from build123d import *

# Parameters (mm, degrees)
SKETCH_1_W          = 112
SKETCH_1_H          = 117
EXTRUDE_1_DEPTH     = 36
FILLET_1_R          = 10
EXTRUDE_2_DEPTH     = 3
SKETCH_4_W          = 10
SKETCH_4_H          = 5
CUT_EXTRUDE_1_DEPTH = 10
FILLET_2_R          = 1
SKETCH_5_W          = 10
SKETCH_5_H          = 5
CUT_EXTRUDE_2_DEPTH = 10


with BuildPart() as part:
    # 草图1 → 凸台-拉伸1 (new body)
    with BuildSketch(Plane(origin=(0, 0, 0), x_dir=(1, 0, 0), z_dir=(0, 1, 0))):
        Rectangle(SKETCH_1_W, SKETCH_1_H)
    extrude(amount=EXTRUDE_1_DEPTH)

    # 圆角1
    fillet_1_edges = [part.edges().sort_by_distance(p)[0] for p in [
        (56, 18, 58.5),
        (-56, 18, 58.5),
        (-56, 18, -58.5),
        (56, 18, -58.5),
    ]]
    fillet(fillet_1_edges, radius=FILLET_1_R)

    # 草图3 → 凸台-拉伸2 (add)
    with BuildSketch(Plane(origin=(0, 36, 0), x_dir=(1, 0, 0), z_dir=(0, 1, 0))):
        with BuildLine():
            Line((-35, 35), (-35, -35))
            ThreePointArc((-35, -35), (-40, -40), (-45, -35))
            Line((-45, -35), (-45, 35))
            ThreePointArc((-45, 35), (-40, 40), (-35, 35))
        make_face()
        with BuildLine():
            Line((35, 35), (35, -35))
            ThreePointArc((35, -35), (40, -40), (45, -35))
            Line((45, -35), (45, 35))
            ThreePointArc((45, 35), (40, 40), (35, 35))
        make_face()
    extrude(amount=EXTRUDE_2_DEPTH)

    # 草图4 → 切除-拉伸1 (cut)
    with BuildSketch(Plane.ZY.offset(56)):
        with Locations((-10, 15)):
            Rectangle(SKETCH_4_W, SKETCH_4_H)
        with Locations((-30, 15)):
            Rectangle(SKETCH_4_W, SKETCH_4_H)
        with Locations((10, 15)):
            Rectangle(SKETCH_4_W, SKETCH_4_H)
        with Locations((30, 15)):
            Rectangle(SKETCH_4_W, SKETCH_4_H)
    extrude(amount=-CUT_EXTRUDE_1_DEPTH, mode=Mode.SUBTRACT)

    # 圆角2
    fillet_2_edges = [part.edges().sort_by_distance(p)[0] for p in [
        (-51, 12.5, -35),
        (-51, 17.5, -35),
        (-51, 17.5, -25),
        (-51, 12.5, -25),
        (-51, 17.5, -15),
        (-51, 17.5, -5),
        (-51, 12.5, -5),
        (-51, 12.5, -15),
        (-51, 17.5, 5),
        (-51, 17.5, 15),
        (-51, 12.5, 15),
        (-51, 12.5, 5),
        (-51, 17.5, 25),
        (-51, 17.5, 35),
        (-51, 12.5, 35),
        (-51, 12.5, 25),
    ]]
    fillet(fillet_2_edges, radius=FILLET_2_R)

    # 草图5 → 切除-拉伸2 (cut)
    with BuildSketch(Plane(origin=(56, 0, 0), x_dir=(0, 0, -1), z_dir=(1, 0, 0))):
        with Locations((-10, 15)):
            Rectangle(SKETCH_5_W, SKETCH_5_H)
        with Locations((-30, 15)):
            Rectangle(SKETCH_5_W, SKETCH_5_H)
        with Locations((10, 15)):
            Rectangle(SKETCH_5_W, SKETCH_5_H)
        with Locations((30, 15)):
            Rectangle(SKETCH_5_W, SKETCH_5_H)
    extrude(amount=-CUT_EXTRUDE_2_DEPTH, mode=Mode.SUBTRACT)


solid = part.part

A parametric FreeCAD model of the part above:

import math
import FreeCAD as App
import Part
import Sketcher
Q = App.Units.Quantity


def edges_at(feature, points):
    """Names of the edges that pass closest to the given points."""
    edges = feature.Shape.Edges
    near = lambda p: min(range(len(edges)), key=lambda i: edges[i].distToShape(Part.Vertex(*p))[0])
    return sorted({f"Edge{near(p) + 1}" for p in points})

doc = App.newDocument("Part")
body = doc.addObject("PartDesign::Body", "Body")

# Sketch on XZ plane
sketch1 = doc.addObject("Sketcher::SketchObject", "Sketch")
body.addObject(sketch1)
sketch1.AttachmentSupport = (doc.XZ_Plane, [""])
sketch1.MapMode = "FlatFace"
sketch1.addGeometry([
    Part.LineSegment(App.Vector(-56, -58, 0), App.Vector(-56, 58, 0)),
    Part.LineSegment(App.Vector(-56, 58, 0), App.Vector(56, 58, 0)),
    Part.LineSegment(App.Vector(56, 58, 0), App.Vector(56, -58, 0)),
    Part.LineSegment(App.Vector(56, -58, 0), App.Vector(-56, -58, 0)),
], False)
sketch1.addConstraint([
    Sketcher.Constraint("Coincident", 0, 2, 1, 1),
    Sketcher.Constraint("Coincident", 1, 2, 2, 1),
    Sketcher.Constraint("Coincident", 2, 2, 3, 1),
    Sketcher.Constraint("Coincident", 3, 2, 0, 1),
    Sketcher.Constraint("Vertical", 0),
    Sketcher.Constraint("Horizontal", 1),
    Sketcher.Constraint("Vertical", 2),
    Sketcher.Constraint("Horizontal", 3),
    Sketcher.Constraint("Symmetric", 0, 2, 2, 2, -1, 1),
    Sketcher.Constraint("DistanceX", 1, 1, 1, 2, Q("112 mm")),
    Sketcher.Constraint("DistanceY", 0, 1, 0, 2, Q("117 mm")),
])
pad1 = doc.addObject("PartDesign::Pad", "Pad")
body.addObject(pad1)
pad1.Profile = sketch1
pad1.Length = 36
pad1.Reversed = True
doc.recompute()

fillet = doc.addObject("PartDesign::Fillet", "Fillet")
body.addObject(fillet)
fillet.Base = (pad1, edges_at(pad1, [
    (56, 18, 58.5),
    (-56, 18, 58.5),
    (-56, 18, -58.5),
    (56, 18, -58.5),
]))
fillet.Radius = 10

# Sketch on XZ plane
sketch2 = doc.addObject("Sketcher::SketchObject", "Sketch001")
body.addObject(sketch2)
sketch2.AttachmentSupport = (doc.XZ_Plane, [""])
sketch2.MapMode = "FlatFace"
sketch2.AttachmentOffset = App.Placement(App.Vector(0, 0, -36), App.Rotation())
sketch2.addGeometry([
    Part.LineSegment(App.Vector(-35, 35, 0), App.Vector(-35, -35, 0)),  # 0
    Part.ArcOfCircle(Part.Circle(App.Vector(-40, -35, 0), App.Vector(0, 0, 1), 5), math.radians(180), math.radians(360)),  # 1
    Part.LineSegment(App.Vector(-45, -35, 0), App.Vector(-45, 35, 0)),  # 2
    Part.ArcOfCircle(Part.Circle(App.Vector(-40, 35, 0), App.Vector(0, 0, 1), 5), math.radians(0), math.radians(180)),  # 3
    Part.LineSegment(App.Vector(35, -35, 0), App.Vector(35, 35, 0)),  # 4
    Part.ArcOfCircle(Part.Circle(App.Vector(40, 35, 0), App.Vector(0, 0, 1), 5), math.radians(0), math.radians(180)),  # 5
    Part.LineSegment(App.Vector(45, 35, 0), App.Vector(45, -35, 0)),  # 6
    Part.ArcOfCircle(Part.Circle(App.Vector(40, -35, 0), App.Vector(0, 0, 1), 5), math.radians(180), math.radians(360)),  # 7
], False)
sketch2.addConstraint([
    Sketcher.Constraint("Tangent", 0, 2, 1, 2),
    Sketcher.Constraint("Tangent", 1, 1, 2, 1),
    Sketcher.Constraint("Tangent", 2, 2, 3, 2),
    Sketcher.Constraint("Tangent", 3, 1, 0, 1),
    Sketcher.Constraint("Tangent", 4, 2, 5, 2),
    Sketcher.Constraint("Tangent", 5, 1, 6, 1),
    Sketcher.Constraint("Tangent", 6, 2, 7, 2),
    Sketcher.Constraint("Tangent", 7, 1, 4, 1),
    Sketcher.Constraint("Vertical", 0),
    Sketcher.Constraint("Vertical", 2),
    Sketcher.Constraint("Vertical", 4),
    Sketcher.Constraint("Vertical", 6),
    Sketcher.Constraint("Equal", 3, 5),
    Sketcher.Constraint("Symmetric", 1, 3, 5, 3, -1, 1),
    Sketcher.Constraint("Horizontal", 3, 3, 5, 3),
    Sketcher.Constraint("Horizontal", 1, 3, 7, 3),
    Sketcher.Constraint("Radius", 1, Q("5 mm")),
    Sketcher.Constraint("DistanceY", 0, 2, 0, 1, Q("70 mm")),
    Sketcher.Constraint("DistanceX", 1, 3, -1, 1, Q("40 mm")),
])
pad2 = doc.addObject("PartDesign::Pad", "Pad001")
body.addObject(pad2)
pad2.Profile = sketch2
pad2.Length = 3
pad2.Reversed = True

# Sketch on YZ plane
sketch3 = doc.addObject("Sketcher::SketchObject", "Sketch002")
body.addObject(sketch3)
sketch3.AttachmentSupport = (doc.YZ_Plane, [""])
sketch3.MapMode = "FlatFace"
sketch3.AttachmentOffset = App.Placement(App.Vector(0, 0, -56), App.Rotation())
sketch3.addGeometry([
    Part.LineSegment(App.Vector(18, -15, 0), App.Vector(12, -15, 0)),  # 0
    Part.LineSegment(App.Vector(12, -15, 0), App.Vector(12, -5, 0)),  # 1
    Part.LineSegment(App.Vector(12, -5, 0), App.Vector(18, -5, 0)),  # 2
    Part.LineSegment(App.Vector(18, -5, 0), App.Vector(18, -15, 0)),  # 3
    Part.LineSegment(App.Vector(18, -35, 0), App.Vector(12, -35, 0)),  # 4
    Part.LineSegment(App.Vector(12, -35, 0), App.Vector(12, -25, 0)),  # 5
    Part.LineSegment(App.Vector(12, -25, 0), App.Vector(18, -25, 0)),  # 6
    Part.LineSegment(App.Vector(18, -25, 0), App.Vector(18, -35, 0)),  # 7
    Part.LineSegment(App.Vector(18, 5, 0), App.Vector(12, 5, 0)),  # 8
    Part.LineSegment(App.Vector(12, 5, 0), App.Vector(12, 15, 0)),  # 9
    Part.LineSegment(App.Vector(12, 15, 0), App.Vector(18, 15, 0)),  # 10
    Part.LineSegment(App.Vector(18, 15, 0), App.Vector(18, 5, 0)),  # 11
    Part.LineSegment(App.Vector(18, 25, 0), App.Vector(12, 25, 0)),  # 12
    Part.LineSegment(App.Vector(12, 25, 0), App.Vector(12, 35, 0)),  # 13
    Part.LineSegment(App.Vector(12, 35, 0), App.Vector(18, 35, 0)),  # 14
    Part.LineSegment(App.Vector(18, 35, 0), App.Vector(18, 25, 0)),  # 15
], False)
sketch3.addConstraint([
    Sketcher.Constraint("Coincident", 0, 2, 1, 1),
    Sketcher.Constraint("Coincident", 1, 2, 2, 1),
    Sketcher.Constraint("Coincident", 2, 2, 3, 1),
    Sketcher.Constraint("Coincident", 3, 2, 0, 1),
    Sketcher.Constraint("Coincident", 4, 2, 5, 1),
    Sketcher.Constraint("Coincident", 5, 2, 6, 1),
    Sketcher.Constraint("Coincident", 6, 2, 7, 1),
    Sketcher.Constraint("Coincident", 7, 2, 4, 1),
    Sketcher.Constraint("Coincident", 8, 2, 9, 1),
    Sketcher.Constraint("Coincident", 9, 2, 10, 1),
    Sketcher.Constraint("Coincident", 10, 2, 11, 1),
    Sketcher.Constraint("Coincident", 11, 2, 8, 1),
    Sketcher.Constraint("Coincident", 12, 2, 13, 1),
    Sketcher.Constraint("Coincident", 13, 2, 14, 1),
    Sketcher.Constraint("Coincident", 14, 2, 15, 1),
    Sketcher.Constraint("Coincident", 15, 2, 12, 1),
    Sketcher.Constraint("Horizontal", 0),
    Sketcher.Constraint("Vertical", 1),
    Sketcher.Constraint("Horizontal", 2),
    Sketcher.Constraint("Vertical", 3),
    Sketcher.Constraint("Horizontal", 4),
    Sketcher.Constraint("Vertical", 5),
    Sketcher.Constraint("Horizontal", 6),
    Sketcher.Constraint("Vertical", 7),
    Sketcher.Constraint("Horizontal", 8),
    Sketcher.Constraint("Vertical", 9),
    Sketcher.Constraint("Horizontal", 10),
    Sketcher.Constraint("Vertical", 11),
    Sketcher.Constraint("Horizontal", 12),
    Sketcher.Constraint("Vertical", 13),
    Sketcher.Constraint("Horizontal", 14),
    Sketcher.Constraint("Vertical", 15),
    Sketcher.Constraint("Symmetric", 1, 2, 8, 2, -1),
    Sketcher.Constraint("Symmetric", 3, 2, 10, 2, -1),
    Sketcher.Constraint("Symmetric", 5, 2, 12, 2, -1),
    Sketcher.Constraint("Symmetric", 7, 2, 14, 2, -1),
    Sketcher.Constraint("Vertical", 1, 2, 4, 2),
    Sketcher.Constraint("Vertical", 3, 2, 6, 2),
    Sketcher.Constraint("Equal", 3, 5),
    Sketcher.Constraint("DistanceX", 0, 2, 0, 1, Q("5 mm")),
    Sketcher.Constraint("DistanceY", 1, 1, 1, 2, Q("10 mm")),
    Sketcher.Constraint("DistanceY", 0, 2, -1, 1, Q("15 mm")),
    Sketcher.Constraint("DistanceY", 4, 2, -1, 1, Q("35 mm")),
    Sketcher.Constraint("DistanceX", -1, 1, 0, 2, Q("12.5 mm")),
])
pocket1 = doc.addObject("PartDesign::Pocket", "Pocket")
body.addObject(pocket1)
pocket1.Profile = sketch3
pocket1.Length = 10
pocket1.Reversed = True
doc.recompute()

fillet2 = doc.addObject("PartDesign::Fillet", "Fillet001")
body.addObject(fillet2)
fillet2.Base = (pocket1, edges_at(pocket1, [
    (-51, 12.5, -35),
    (-51, 17.5, -35),
    (-51, 17.5, -25),
    (-51, 12.5, -25),
    (-51, 17.5, -15),
    (-51, 17.5, -5),
    (-51, 12.5, -5),
    (-51, 12.5, -15),
    (-51, 17.5, 5),
    (-51, 17.5, 15),
    (-51, 12.5, 15),
    (-51, 12.5, 5),
    (-51, 17.5, 25),
    (-51, 17.5, 35),
    (-51, 12.5, 35),
    (-51, 12.5, 25),
]))
fillet2.Radius = 1

# Sketch on YZ plane
sketch4 = doc.addObject("Sketcher::SketchObject", "Sketch003")
body.addObject(sketch4)
sketch4.AttachmentSupport = (doc.YZ_Plane, [""])
sketch4.MapMode = "FlatFace"
sketch4.AttachmentOffset = App.Placement(App.Vector(0, 0, 56), App.Rotation())
sketch4.addGeometry([
    Part.LineSegment(App.Vector(18, 15, 0), App.Vector(12, 15, 0)),  # 0
    Part.LineSegment(App.Vector(12, 15, 0), App.Vector(12, 5, 0)),  # 1
    Part.LineSegment(App.Vector(12, 5, 0), App.Vector(18, 5, 0)),  # 2
    Part.LineSegment(App.Vector(18, 5, 0), App.Vector(18, 15, 0)),  # 3
    Part.LineSegment(App.Vector(18, 35, 0), App.Vector(12, 35, 0)),  # 4
    Part.LineSegment(App.Vector(12, 35, 0), App.Vector(12, 25, 0)),  # 5
    Part.LineSegment(App.Vector(12, 25, 0), App.Vector(18, 25, 0)),  # 6
    Part.LineSegment(App.Vector(18, 25, 0), App.Vector(18, 35, 0)),  # 7
    Part.LineSegment(App.Vector(18, -5, 0), App.Vector(12, -5, 0)),  # 8
    Part.LineSegment(App.Vector(12, -5, 0), App.Vector(12, -15, 0)),  # 9
    Part.LineSegment(App.Vector(12, -15, 0), App.Vector(18, -15, 0)),  # 10
    Part.LineSegment(App.Vector(18, -15, 0), App.Vector(18, -5, 0)),  # 11
    Part.LineSegment(App.Vector(18, -25, 0), App.Vector(12, -25, 0)),  # 12
    Part.LineSegment(App.Vector(12, -25, 0), App.Vector(12, -35, 0)),  # 13
    Part.LineSegment(App.Vector(12, -35, 0), App.Vector(18, -35, 0)),  # 14
    Part.LineSegment(App.Vector(18, -35, 0), App.Vector(18, -25, 0)),  # 15
], False)
sketch4.addConstraint([
    Sketcher.Constraint("Coincident", 0, 2, 1, 1),
    Sketcher.Constraint("Coincident", 1, 2, 2, 1),
    Sketcher.Constraint("Coincident", 2, 2, 3, 1),
    Sketcher.Constraint("Coincident", 3, 2, 0, 1),
    Sketcher.Constraint("Coincident", 4, 2, 5, 1),
    Sketcher.Constraint("Coincident", 5, 2, 6, 1),
    Sketcher.Constraint("Coincident", 6, 2, 7, 1),
    Sketcher.Constraint("Coincident", 7, 2, 4, 1),
    Sketcher.Constraint("Coincident", 8, 2, 9, 1),
    Sketcher.Constraint("Coincident", 9, 2, 10, 1),
    Sketcher.Constraint("Coincident", 10, 2, 11, 1),
    Sketcher.Constraint("Coincident", 11, 2, 8, 1),
    Sketcher.Constraint("Coincident", 12, 2, 13, 1),
    Sketcher.Constraint("Coincident", 13, 2, 14, 1),
    Sketcher.Constraint("Coincident", 14, 2, 15, 1),
    Sketcher.Constraint("Coincident", 15, 2, 12, 1),
    Sketcher.Constraint("Horizontal", 0),
    Sketcher.Constraint("Vertical", 1),
    Sketcher.Constraint("Horizontal", 2),
    Sketcher.Constraint("Vertical", 3),
    Sketcher.Constraint("Horizontal", 4),
    Sketcher.Constraint("Vertical", 5),
    Sketcher.Constraint("Horizontal", 6),
    Sketcher.Constraint("Vertical", 7),
    Sketcher.Constraint("Horizontal", 8),
    Sketcher.Constraint("Vertical", 9),
    Sketcher.Constraint("Horizontal", 10),
    Sketcher.Constraint("Vertical", 11),
    Sketcher.Constraint("Horizontal", 12),
    Sketcher.Constraint("Vertical", 13),
    Sketcher.Constraint("Horizontal", 14),
    Sketcher.Constraint("Vertical", 15),
    Sketcher.Constraint("Symmetric", 1, 2, 8, 2, -1),
    Sketcher.Constraint("Symmetric", 3, 2, 10, 2, -1),
    Sketcher.Constraint("Symmetric", 5, 2, 12, 2, -1),
    Sketcher.Constraint("Symmetric", 7, 2, 14, 2, -1),
    Sketcher.Constraint("Vertical", 1, 2, 4, 2),
    Sketcher.Constraint("Vertical", 3, 2, 6, 2),
    Sketcher.Constraint("Equal", 3, 5),
    Sketcher.Constraint("DistanceX", 0, 2, 0, 1, Q("5 mm")),
    Sketcher.Constraint("DistanceY", 1, 2, 1, 1, Q("10 mm")),
    Sketcher.Constraint("DistanceY", -1, 1, 0, 2, Q("15 mm")),
    Sketcher.Constraint("DistanceY", -1, 1, 4, 2, Q("35 mm")),
    Sketcher.Constraint("DistanceX", -1, 1, 0, 2, Q("12.5 mm")),
])
pocket2 = doc.addObject("PartDesign::Pocket", "Pocket001")
body.addObject(pocket2)
pocket2.Profile = sketch4
pocket2.Length = 10

doc.recompute()
